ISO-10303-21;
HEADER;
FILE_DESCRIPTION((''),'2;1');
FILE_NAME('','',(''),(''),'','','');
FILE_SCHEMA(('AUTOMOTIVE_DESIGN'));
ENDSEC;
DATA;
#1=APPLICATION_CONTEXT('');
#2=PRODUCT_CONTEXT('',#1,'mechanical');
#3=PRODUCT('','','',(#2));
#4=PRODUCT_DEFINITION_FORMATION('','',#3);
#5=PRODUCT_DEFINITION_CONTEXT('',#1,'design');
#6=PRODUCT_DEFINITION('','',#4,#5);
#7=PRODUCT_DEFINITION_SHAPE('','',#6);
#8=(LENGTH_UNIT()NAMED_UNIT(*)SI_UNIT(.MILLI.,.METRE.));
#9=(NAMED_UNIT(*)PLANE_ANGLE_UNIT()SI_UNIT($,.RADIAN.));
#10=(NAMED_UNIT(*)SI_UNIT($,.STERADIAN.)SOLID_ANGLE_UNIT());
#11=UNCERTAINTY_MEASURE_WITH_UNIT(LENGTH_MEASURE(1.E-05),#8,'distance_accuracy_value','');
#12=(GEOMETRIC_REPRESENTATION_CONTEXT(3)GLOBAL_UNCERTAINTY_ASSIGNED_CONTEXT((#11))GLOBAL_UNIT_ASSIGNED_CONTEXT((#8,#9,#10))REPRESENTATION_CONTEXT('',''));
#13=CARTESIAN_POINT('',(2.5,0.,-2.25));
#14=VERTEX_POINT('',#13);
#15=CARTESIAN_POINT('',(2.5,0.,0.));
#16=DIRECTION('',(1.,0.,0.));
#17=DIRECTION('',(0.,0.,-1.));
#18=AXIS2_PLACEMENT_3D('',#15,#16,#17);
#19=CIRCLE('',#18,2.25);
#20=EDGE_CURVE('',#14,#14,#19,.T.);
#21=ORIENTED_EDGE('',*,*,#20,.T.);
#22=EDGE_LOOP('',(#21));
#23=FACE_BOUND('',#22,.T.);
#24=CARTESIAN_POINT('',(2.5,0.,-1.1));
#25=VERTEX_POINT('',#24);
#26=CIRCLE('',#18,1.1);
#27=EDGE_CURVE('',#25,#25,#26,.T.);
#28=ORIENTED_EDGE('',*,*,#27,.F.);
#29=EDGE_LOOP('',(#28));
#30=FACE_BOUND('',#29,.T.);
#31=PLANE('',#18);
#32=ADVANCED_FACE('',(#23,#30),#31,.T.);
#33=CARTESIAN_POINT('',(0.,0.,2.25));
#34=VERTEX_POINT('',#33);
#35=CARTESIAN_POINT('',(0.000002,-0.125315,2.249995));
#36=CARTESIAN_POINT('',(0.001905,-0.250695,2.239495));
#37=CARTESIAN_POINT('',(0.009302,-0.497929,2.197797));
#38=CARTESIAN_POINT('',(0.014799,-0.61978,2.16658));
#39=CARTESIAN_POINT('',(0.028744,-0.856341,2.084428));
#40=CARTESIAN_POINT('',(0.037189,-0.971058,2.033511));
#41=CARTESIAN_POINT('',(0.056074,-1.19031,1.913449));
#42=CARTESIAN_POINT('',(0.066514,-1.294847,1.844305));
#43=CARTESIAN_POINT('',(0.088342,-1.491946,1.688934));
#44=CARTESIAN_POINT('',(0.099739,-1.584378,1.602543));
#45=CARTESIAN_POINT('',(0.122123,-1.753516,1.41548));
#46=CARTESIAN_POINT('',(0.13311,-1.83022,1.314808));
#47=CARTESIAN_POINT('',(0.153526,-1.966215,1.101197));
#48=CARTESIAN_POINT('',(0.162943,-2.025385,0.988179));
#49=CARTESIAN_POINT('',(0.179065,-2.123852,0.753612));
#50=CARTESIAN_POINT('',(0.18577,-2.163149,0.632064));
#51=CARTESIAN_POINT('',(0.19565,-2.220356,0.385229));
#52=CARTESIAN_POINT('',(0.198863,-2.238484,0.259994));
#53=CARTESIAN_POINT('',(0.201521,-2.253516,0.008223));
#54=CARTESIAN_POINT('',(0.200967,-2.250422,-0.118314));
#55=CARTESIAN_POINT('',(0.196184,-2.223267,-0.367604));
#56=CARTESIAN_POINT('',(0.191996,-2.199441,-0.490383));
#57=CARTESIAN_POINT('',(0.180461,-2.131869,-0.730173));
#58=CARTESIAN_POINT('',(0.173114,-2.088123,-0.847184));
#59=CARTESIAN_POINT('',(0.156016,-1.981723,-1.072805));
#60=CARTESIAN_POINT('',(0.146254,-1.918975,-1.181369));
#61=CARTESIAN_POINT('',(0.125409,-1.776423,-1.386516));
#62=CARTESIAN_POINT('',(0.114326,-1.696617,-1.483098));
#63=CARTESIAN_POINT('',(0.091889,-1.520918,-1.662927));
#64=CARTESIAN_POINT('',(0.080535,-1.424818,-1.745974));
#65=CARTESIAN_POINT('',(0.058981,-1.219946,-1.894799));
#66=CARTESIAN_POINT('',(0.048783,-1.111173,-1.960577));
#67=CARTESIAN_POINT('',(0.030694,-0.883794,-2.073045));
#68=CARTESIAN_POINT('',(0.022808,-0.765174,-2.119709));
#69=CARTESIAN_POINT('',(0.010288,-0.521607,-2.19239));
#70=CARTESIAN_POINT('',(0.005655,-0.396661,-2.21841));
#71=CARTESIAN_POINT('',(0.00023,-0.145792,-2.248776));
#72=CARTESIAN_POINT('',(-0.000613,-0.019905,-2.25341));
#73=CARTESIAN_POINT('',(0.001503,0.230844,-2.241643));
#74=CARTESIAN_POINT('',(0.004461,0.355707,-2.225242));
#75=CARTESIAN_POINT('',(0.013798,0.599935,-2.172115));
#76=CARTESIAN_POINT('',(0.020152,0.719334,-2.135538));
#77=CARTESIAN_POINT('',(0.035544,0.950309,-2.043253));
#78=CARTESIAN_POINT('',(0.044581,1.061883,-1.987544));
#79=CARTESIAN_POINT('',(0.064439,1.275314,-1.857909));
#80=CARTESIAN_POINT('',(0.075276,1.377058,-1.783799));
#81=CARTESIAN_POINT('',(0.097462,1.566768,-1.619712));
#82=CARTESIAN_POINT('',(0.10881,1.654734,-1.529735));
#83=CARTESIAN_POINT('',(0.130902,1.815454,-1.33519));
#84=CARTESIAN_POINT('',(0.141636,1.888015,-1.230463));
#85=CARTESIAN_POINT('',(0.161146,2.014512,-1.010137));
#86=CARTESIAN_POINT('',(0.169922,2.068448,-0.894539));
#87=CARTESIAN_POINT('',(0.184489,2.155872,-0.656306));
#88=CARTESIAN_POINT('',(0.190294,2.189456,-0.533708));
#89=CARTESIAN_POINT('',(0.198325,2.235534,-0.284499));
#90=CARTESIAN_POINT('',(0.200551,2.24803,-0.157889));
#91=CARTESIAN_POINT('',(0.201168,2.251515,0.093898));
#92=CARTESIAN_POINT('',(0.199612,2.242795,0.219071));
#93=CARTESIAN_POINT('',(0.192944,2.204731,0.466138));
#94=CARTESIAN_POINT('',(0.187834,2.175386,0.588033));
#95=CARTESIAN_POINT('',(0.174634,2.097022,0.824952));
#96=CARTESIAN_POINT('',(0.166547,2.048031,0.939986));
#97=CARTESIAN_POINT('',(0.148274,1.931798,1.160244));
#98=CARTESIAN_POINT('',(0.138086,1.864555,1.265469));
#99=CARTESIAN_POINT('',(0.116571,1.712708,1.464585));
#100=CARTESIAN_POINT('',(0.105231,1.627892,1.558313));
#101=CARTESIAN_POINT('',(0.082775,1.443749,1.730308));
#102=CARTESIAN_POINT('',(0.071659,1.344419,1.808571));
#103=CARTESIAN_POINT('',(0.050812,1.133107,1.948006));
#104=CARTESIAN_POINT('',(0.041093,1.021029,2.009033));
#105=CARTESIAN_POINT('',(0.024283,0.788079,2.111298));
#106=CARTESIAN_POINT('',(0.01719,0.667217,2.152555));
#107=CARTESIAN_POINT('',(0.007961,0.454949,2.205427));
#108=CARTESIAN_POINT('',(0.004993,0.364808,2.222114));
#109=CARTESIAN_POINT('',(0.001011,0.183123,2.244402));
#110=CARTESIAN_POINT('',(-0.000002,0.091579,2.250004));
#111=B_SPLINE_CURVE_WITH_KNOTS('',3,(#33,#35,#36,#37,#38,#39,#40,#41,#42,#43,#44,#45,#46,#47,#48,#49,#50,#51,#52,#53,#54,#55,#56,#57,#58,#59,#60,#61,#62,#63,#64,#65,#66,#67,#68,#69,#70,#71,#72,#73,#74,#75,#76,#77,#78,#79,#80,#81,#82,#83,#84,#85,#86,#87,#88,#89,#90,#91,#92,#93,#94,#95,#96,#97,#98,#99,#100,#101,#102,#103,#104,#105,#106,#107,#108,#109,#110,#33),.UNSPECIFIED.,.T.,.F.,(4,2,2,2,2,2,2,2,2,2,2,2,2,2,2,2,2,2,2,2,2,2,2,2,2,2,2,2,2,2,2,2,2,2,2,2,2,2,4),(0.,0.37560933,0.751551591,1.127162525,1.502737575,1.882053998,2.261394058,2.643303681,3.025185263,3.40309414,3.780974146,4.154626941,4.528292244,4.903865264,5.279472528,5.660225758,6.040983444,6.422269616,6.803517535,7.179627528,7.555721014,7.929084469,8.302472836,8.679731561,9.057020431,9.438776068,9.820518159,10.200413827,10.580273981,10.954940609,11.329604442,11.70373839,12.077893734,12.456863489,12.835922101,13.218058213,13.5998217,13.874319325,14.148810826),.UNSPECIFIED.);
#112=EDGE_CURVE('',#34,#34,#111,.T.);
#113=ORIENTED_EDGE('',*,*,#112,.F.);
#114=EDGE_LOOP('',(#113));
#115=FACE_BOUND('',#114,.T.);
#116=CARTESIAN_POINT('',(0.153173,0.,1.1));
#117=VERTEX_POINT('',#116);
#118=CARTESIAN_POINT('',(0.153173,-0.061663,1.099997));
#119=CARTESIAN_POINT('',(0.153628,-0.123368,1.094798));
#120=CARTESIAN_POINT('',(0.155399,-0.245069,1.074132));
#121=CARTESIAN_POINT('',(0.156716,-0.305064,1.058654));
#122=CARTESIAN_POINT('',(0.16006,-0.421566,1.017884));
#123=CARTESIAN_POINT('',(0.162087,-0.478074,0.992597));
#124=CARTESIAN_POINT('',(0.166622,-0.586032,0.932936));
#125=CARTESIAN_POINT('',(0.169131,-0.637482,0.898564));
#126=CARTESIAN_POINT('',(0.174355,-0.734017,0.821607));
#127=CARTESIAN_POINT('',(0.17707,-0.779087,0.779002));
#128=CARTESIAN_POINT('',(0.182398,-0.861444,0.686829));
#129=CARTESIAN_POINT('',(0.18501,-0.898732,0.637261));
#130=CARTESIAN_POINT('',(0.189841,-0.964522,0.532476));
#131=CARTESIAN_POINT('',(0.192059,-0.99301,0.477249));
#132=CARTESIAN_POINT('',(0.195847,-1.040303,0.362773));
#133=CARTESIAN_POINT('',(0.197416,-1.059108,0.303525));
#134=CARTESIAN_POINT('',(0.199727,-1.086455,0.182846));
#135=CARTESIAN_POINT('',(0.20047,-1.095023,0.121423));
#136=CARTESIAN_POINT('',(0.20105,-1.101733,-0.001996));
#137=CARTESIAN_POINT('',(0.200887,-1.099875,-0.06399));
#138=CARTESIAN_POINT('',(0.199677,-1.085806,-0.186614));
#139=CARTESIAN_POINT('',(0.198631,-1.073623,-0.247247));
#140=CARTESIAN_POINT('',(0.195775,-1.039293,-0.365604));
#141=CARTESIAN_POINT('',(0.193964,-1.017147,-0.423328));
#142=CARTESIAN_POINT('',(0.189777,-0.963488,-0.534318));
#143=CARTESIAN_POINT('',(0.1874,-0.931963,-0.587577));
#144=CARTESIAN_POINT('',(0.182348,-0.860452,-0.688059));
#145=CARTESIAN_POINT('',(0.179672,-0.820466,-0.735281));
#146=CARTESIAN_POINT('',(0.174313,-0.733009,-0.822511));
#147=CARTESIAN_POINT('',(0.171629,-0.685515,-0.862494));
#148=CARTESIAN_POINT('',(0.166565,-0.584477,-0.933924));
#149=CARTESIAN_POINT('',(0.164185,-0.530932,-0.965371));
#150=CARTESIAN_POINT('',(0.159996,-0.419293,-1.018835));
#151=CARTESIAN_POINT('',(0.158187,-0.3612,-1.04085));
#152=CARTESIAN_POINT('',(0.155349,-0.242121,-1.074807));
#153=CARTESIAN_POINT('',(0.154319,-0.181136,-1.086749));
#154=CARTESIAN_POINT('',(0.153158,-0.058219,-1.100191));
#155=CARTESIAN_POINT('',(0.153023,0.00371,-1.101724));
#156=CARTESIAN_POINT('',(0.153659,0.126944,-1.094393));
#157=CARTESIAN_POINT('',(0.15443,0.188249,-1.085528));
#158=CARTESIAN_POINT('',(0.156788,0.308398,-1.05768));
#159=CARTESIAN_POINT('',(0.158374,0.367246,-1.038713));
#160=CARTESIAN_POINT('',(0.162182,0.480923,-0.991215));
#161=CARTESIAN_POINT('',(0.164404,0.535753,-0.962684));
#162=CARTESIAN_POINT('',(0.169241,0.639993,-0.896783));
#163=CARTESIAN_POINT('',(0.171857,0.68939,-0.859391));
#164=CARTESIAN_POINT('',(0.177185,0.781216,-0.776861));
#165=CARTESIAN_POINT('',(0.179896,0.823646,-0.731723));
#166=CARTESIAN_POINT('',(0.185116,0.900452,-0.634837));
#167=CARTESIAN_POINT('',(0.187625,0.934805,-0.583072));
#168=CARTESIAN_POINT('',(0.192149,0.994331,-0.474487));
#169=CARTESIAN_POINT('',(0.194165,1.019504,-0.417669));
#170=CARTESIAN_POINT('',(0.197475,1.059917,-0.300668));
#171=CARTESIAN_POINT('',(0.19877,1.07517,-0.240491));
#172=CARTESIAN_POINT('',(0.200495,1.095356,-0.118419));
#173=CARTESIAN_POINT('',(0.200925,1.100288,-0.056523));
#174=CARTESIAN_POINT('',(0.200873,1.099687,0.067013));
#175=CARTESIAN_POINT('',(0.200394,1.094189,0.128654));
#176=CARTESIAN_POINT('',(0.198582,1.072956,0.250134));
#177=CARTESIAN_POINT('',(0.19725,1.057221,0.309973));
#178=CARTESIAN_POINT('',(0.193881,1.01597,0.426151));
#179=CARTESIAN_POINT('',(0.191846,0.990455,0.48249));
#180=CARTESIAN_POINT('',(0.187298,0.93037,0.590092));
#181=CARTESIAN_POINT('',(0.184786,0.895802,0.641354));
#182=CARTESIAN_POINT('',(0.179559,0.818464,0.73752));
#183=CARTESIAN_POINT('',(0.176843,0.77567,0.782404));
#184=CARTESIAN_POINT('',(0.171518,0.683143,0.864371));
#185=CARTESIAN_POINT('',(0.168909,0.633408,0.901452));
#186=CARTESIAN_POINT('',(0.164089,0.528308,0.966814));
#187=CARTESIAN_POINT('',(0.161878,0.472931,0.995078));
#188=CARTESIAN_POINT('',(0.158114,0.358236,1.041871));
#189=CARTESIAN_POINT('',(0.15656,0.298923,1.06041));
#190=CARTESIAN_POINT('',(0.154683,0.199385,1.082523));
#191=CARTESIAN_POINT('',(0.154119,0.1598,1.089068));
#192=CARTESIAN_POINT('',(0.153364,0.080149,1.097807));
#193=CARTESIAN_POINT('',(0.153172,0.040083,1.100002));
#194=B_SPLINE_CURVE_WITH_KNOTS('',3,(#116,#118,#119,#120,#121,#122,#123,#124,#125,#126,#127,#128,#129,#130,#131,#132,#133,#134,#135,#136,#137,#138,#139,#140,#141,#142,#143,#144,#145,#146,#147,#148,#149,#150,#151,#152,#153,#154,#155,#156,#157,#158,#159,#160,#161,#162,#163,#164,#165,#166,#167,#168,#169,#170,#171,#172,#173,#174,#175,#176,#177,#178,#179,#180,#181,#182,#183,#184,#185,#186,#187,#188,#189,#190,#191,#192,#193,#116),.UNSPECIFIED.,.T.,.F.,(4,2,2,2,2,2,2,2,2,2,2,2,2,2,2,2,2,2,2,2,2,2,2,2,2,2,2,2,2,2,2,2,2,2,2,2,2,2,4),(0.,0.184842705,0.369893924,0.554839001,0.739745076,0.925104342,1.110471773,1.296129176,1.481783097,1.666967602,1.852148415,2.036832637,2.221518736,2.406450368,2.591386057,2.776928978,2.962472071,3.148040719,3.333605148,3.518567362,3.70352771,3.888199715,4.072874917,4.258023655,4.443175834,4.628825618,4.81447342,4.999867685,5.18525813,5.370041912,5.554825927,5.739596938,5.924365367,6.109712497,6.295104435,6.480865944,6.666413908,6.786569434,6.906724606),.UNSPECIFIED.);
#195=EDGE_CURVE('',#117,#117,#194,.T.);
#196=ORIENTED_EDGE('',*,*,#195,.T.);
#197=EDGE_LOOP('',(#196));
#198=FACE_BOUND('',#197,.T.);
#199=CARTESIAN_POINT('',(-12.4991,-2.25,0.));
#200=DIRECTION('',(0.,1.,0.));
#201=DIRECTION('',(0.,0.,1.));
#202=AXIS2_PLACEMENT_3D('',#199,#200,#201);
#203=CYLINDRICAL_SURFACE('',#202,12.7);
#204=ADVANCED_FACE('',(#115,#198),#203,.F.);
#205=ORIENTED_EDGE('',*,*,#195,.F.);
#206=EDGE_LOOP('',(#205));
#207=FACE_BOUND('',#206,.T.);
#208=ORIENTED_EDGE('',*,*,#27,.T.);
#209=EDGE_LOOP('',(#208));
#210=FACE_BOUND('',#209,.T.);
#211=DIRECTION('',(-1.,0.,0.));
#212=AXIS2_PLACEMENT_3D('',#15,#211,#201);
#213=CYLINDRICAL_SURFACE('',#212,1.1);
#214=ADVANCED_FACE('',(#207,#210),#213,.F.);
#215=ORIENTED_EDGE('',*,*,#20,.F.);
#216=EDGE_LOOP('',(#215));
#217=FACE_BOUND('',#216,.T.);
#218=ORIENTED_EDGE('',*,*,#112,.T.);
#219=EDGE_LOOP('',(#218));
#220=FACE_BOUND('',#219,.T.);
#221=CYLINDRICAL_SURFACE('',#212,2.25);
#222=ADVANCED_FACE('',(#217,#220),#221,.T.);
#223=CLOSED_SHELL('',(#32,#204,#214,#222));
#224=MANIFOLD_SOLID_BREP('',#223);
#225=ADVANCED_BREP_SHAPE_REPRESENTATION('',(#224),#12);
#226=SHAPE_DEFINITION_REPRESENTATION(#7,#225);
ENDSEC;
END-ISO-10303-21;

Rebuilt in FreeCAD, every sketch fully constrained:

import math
import FreeCAD as App
import Part
import Sketcher

V = App.Vector
Q = App.Units.Quantity

doc = App.newDocument("Part")
params = doc.addObject("Spreadsheet::Sheet", "Params")
for row, (alias, value) in enumerate([
    ("sketch1_diameter", "4.5 mm"),
    ("sketch1_diameter2", "2.2 mm"),
    ("pad1_length", "2.5 mm"),
    ("sketch2_radius", "12.7 mm"),
    ("sketch2_height", "4.5 mm"),
], start=1):
    params.set(f"A{row}", alias)
    params.set(f"B{row}", "=" + value)
    params.setAlias(f"B{row}", alias)

body = doc.addObject("PartDesign::Body", "Body")

# Sketch on YZ plane
sketch1 = body.newObject("Sketcher::SketchObject", "Sketch")
sketch1.AttachmentSupport = (doc.getObject("YZ_Plane"), [""])
sketch1.MapMode = "FlatFace"
sketch1.addGeometry([
    Part.Circle(V(0, 0, 0), V(0, 0, 1), 2.2),
    Part.Circle(V(0, 0, 0), V(0, 0, 1), 1.1),
], False)
sketch1.addConstraint([
    Sketcher.Constraint("Coincident", 0, 3, -1, 1),
    Sketcher.Constraint("Coincident", 1, 3, -1, 1),
    Sketcher.Constraint("Diameter", 0, Q("4.5 mm")),
    Sketcher.Constraint("Diameter", 1, Q("2.2 mm")),
])
sketch1.setExpression("Constraints[2]", "Params.sketch1_diameter")
sketch1.setExpression("Constraints[3]", "Params.sketch1_diameter2")
pad1 = body.newObject("PartDesign::Pad", "Pad")
pad1.Profile = sketch1
pad1.setExpression("Length", "Params.pad1_length")

# Sketch on XZ plane
sketch2 = body.newObject("Sketcher::SketchObject", "Sketch001")
sketch2.AttachmentSupport = (doc.getObject("XZ_Plane"), [""])
sketch2.MapMode = "FlatFace"
sketch2.addGeometry([
    Part.LineSegment(V(0, -2.2, 0), V(0, 2.2, 0)),
    Part.ArcOfCircle(Part.Circle(V(-12.5, 0, 0), V(0, 0, 1), 12.7), math.radians(-10), math.radians(10)),
], False)
sketch2.addConstraint([
    Sketcher.Constraint("Coincident", 0, 1, 1, 1),
    Sketcher.Constraint("Coincident", 1, 2, 0, 2),
    Sketcher.Constraint("Vertical", 0),
    Sketcher.Constraint("Symmetric", 0, 1, 1, 2, -1, 1),
    Sketcher.Constraint("Radius", 1, Q("12.7 mm")),
    Sketcher.Constraint("DistanceY", 0, 1, 0, 2, Q("4.5 mm")),
])
sketch2.setExpression("Constraints[4]", "Params.sketch2_radius")
sketch2.setExpression("Constraints[5]", "Params.sketch2_height")
pocket1 = body.newObject("PartDesign::Pocket", "Pocket")
pocket1.Profile = sketch2
pocket1.Type = "ThroughAll"
pocket1.Midplane = True

doc.recompute()
